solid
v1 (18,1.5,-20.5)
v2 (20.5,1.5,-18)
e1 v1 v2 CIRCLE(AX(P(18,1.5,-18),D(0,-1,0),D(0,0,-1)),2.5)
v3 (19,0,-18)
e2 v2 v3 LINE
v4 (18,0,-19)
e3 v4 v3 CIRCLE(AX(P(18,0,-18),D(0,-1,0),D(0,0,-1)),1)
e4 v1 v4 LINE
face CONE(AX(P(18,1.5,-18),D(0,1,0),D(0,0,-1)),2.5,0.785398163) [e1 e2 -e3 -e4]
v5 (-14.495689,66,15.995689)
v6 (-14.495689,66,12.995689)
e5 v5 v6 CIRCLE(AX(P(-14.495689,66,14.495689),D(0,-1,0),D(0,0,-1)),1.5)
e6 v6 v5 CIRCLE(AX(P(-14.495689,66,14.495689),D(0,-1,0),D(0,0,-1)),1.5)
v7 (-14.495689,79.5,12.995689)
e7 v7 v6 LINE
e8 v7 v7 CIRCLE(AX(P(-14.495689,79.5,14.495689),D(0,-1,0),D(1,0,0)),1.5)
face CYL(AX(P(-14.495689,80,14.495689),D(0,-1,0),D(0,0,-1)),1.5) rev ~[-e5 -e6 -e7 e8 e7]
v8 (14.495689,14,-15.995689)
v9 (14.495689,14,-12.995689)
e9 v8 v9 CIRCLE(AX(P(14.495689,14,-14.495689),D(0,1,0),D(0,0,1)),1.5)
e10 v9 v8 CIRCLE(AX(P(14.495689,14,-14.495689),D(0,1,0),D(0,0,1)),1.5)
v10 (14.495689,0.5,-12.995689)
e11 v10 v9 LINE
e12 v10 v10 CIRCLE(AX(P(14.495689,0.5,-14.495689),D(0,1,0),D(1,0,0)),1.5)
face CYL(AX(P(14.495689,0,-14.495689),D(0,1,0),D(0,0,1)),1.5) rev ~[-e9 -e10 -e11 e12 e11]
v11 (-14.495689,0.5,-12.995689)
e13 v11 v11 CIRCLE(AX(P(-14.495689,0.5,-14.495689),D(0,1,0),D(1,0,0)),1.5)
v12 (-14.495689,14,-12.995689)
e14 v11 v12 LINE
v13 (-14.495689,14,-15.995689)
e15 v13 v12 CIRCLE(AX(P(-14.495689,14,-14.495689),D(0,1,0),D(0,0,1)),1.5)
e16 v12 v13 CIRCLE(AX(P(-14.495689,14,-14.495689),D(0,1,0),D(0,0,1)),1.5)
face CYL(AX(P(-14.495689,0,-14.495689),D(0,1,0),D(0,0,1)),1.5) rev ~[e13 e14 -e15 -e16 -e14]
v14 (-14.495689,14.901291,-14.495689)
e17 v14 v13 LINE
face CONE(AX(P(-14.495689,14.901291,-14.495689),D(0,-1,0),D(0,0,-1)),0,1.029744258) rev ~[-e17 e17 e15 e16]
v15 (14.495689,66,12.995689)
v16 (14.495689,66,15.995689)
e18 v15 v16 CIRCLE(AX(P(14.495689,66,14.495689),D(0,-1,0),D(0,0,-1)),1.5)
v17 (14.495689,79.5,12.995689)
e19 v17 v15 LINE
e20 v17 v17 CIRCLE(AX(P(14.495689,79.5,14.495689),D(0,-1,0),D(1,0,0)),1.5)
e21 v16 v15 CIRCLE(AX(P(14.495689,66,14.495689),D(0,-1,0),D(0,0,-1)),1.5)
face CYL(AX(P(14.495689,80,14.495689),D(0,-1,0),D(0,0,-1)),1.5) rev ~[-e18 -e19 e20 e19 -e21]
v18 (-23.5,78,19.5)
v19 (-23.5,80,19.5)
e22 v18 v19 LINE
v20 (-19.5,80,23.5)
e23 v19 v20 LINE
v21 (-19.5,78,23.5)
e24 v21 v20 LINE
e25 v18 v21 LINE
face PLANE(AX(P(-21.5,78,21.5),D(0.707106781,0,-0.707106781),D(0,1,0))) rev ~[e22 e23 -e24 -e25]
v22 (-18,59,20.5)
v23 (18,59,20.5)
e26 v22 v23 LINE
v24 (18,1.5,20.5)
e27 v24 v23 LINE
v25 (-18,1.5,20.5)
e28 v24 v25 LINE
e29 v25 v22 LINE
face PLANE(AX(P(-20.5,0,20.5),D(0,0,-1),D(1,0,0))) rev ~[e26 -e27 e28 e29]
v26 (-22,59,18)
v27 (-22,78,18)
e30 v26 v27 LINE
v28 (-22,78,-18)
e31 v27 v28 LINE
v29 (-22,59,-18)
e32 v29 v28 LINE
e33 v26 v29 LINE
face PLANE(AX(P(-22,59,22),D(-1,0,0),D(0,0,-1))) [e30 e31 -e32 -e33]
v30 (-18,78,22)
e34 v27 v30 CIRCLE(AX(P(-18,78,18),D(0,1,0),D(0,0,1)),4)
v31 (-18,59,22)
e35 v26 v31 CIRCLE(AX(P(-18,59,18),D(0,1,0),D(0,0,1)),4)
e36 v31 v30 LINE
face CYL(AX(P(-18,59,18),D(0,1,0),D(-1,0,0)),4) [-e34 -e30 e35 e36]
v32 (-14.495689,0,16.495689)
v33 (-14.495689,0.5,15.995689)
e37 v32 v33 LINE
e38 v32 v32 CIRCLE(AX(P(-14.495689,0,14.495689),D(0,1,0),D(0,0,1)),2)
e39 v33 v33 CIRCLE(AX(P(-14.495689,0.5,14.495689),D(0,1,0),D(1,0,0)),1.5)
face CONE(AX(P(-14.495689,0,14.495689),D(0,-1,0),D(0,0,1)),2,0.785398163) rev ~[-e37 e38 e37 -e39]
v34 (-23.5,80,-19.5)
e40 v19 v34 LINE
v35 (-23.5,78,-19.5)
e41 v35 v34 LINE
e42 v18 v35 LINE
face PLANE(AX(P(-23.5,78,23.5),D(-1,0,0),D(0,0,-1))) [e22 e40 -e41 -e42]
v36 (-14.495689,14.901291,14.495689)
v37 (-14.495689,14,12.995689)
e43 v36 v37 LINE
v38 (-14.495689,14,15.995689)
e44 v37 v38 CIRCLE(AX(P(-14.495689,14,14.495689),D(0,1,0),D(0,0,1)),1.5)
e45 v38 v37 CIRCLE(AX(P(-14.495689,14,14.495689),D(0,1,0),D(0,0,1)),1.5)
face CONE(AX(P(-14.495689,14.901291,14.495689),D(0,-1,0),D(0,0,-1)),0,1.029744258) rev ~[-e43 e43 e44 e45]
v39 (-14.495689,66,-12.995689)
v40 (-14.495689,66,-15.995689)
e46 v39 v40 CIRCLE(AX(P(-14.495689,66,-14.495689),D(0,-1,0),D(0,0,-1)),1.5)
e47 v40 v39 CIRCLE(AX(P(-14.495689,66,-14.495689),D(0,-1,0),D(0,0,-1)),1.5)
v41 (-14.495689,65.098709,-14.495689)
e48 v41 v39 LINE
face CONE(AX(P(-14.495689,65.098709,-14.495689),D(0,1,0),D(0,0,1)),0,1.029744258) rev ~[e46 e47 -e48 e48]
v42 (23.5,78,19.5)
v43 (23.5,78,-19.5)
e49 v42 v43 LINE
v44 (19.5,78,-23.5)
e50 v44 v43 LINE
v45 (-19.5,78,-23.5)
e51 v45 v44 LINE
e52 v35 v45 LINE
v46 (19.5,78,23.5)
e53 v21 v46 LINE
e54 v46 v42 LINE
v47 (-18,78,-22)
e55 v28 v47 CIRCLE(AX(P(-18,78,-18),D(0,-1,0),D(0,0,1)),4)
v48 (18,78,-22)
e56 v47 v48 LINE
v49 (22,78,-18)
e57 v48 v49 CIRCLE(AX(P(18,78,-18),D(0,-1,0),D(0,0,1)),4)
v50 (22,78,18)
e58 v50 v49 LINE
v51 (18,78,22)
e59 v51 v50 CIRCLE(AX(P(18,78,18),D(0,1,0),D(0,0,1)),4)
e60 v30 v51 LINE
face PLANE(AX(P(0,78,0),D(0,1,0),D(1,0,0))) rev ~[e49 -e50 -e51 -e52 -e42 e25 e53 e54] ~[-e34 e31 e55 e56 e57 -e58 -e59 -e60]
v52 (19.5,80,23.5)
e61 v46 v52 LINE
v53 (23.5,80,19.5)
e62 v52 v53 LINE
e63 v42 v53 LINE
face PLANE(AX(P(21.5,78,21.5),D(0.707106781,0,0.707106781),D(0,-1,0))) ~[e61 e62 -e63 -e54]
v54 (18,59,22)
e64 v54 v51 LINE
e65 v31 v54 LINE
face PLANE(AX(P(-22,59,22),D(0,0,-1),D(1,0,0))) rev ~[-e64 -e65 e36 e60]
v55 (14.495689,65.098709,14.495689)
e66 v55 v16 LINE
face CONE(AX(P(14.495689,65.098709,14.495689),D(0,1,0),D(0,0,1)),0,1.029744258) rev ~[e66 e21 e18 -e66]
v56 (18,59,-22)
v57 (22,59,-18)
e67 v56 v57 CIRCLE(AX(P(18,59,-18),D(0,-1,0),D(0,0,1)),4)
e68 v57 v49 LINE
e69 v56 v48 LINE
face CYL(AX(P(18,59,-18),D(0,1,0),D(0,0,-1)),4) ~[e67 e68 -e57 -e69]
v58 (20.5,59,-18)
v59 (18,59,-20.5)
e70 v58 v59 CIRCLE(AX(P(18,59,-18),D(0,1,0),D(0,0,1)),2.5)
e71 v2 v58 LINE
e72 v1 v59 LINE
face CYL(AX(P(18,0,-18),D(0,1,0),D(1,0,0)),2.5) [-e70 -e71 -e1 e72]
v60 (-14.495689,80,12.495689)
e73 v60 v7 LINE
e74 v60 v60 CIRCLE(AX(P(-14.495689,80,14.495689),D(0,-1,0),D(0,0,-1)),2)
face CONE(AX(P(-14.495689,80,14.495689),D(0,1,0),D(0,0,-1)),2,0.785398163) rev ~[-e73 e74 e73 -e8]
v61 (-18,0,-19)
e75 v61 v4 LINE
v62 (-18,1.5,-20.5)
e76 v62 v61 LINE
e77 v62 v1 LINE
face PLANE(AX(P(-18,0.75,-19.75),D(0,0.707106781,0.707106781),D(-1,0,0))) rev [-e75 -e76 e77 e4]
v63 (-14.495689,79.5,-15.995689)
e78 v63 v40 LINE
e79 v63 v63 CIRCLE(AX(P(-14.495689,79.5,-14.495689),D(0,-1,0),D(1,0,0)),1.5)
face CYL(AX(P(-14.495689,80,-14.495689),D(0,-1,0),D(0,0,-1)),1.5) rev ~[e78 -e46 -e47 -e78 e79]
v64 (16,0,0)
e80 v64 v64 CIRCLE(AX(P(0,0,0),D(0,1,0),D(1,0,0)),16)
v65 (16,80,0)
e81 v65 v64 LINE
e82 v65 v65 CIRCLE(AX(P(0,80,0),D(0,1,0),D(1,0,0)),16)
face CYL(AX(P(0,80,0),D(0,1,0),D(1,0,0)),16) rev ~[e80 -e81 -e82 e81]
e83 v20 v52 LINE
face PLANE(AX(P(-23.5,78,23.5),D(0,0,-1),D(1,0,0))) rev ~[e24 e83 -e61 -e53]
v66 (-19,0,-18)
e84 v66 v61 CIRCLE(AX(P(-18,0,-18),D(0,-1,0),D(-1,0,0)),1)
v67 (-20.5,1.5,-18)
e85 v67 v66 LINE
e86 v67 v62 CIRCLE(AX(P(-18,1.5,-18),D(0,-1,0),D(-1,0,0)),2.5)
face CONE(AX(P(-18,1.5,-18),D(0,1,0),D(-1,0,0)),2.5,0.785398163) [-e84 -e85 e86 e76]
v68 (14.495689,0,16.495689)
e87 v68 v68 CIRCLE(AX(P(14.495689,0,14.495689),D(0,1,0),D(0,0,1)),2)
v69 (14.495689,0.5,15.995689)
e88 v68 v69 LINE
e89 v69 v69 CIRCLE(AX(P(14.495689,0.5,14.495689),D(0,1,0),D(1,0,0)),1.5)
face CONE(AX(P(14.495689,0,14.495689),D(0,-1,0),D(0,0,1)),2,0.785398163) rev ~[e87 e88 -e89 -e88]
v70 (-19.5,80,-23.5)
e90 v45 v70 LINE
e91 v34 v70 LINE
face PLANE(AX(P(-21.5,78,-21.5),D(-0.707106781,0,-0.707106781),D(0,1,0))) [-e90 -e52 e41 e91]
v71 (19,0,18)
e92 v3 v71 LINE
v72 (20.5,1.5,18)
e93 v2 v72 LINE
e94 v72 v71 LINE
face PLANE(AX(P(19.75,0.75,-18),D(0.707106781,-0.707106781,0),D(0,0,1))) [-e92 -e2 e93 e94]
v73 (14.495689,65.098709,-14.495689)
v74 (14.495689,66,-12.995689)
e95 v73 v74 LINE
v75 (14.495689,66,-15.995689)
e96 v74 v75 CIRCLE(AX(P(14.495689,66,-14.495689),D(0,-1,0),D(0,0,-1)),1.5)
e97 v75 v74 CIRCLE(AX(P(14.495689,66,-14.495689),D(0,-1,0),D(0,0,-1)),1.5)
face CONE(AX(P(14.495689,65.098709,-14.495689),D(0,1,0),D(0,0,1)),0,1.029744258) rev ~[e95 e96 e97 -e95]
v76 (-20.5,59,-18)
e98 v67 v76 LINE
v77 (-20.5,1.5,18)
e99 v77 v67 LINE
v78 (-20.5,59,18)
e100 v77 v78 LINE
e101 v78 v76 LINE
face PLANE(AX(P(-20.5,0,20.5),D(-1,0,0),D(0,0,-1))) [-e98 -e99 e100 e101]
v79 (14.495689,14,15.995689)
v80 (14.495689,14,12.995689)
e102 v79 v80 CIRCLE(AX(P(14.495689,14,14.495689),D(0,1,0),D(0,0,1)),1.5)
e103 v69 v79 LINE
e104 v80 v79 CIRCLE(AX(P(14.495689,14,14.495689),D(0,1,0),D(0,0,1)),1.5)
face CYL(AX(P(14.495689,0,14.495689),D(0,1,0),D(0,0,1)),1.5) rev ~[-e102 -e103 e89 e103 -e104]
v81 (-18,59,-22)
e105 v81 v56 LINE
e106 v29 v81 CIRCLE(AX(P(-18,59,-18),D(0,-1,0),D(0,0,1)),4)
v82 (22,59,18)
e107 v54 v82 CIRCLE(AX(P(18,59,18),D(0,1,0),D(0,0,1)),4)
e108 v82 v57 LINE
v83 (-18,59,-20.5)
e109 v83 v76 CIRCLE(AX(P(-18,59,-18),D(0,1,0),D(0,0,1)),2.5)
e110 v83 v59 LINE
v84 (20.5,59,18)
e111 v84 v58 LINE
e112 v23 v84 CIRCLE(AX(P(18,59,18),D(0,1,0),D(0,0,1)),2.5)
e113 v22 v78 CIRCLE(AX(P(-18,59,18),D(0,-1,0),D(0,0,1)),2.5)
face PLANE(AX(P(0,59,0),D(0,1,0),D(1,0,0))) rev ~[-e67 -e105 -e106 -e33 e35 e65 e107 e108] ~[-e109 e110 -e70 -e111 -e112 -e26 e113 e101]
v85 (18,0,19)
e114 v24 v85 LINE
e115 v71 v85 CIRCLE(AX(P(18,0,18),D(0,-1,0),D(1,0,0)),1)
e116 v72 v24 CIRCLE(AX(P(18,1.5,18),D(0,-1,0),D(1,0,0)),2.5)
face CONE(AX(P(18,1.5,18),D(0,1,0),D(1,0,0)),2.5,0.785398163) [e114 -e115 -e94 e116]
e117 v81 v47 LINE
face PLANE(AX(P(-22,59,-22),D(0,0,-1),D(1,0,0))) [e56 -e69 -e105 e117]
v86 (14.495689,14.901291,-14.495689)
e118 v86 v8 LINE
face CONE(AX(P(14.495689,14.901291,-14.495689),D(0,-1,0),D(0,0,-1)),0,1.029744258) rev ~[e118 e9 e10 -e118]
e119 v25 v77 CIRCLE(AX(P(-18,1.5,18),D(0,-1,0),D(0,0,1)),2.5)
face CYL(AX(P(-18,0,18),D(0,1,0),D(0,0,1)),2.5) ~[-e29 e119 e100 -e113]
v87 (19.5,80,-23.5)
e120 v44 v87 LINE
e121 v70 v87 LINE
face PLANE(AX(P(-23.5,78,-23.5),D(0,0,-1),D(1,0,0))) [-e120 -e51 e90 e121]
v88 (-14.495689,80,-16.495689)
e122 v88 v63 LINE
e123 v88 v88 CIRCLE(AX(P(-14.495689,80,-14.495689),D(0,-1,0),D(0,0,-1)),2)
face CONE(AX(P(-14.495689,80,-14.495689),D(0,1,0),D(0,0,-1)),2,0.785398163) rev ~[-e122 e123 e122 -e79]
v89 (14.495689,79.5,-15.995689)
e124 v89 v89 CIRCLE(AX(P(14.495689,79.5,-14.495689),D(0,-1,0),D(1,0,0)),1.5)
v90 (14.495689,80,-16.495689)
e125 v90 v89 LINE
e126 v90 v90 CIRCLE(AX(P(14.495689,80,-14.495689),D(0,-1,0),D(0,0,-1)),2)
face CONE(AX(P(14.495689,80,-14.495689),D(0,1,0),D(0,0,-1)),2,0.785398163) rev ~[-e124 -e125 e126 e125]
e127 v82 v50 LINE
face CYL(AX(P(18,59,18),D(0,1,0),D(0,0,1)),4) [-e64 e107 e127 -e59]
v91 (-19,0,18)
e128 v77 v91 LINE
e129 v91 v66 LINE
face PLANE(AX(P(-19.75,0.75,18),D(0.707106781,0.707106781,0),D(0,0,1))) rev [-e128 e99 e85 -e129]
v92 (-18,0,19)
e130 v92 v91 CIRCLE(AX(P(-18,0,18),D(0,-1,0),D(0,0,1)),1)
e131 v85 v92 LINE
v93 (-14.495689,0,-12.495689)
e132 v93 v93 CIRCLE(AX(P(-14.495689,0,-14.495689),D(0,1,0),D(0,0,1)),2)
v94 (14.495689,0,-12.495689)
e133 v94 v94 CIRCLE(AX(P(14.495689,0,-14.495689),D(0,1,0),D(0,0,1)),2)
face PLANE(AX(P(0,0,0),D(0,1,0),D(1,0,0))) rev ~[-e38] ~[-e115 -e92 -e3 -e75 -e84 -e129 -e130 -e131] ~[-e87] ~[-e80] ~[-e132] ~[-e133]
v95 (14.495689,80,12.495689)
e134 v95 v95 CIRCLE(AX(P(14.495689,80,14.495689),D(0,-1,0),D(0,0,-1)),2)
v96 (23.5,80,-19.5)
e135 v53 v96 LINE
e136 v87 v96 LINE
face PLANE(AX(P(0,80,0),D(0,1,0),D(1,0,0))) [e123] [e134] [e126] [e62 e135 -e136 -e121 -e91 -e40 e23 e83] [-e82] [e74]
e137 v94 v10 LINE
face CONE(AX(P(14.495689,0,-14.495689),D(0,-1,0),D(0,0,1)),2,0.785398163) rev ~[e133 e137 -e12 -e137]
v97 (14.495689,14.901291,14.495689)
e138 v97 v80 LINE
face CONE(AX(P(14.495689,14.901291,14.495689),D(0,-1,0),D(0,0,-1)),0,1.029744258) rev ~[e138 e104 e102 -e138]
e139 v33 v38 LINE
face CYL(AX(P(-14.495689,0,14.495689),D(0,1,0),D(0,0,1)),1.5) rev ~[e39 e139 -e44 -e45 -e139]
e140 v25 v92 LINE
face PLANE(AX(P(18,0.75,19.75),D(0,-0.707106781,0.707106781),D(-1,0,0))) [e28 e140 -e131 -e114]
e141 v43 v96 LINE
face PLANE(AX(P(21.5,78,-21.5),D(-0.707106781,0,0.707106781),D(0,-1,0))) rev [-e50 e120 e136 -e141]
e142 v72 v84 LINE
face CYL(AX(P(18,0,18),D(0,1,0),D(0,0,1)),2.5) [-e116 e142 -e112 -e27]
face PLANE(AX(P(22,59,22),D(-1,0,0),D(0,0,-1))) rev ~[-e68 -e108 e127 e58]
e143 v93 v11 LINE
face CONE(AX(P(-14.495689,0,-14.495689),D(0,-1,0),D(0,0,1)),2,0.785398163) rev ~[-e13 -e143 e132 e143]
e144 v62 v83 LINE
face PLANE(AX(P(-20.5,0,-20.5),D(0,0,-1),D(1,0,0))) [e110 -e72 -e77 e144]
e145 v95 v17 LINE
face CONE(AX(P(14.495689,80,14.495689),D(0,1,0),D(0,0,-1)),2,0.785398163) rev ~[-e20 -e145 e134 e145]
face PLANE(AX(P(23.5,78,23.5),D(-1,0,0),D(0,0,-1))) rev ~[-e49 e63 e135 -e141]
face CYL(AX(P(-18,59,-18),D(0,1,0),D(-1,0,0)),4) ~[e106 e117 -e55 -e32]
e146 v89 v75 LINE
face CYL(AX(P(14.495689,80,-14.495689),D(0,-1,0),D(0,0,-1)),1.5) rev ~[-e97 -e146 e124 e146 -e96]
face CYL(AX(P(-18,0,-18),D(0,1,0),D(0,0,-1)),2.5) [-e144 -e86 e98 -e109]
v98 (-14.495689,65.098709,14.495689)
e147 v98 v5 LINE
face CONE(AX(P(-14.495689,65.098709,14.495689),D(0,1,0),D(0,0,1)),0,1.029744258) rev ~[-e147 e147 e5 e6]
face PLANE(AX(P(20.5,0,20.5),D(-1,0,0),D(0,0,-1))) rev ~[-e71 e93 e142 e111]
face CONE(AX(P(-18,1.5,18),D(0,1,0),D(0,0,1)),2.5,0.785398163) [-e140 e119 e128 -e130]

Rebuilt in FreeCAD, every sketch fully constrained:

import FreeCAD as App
import Part
import Sketcher
from FreeCAD import Vector


def edges_at(feature, points):
    """Names of the edges that pass closest to the given points."""
    edges = feature.Shape.Edges
    near = lambda p: min(range(len(edges)), key=lambda i: edges[i].distToShape(Part.Vertex(*p))[0])
    return sorted({f"Edge{near(p) + 1}" for p in points})


def add_polygon(sketch, points):
    """Adds a closed chain of lines whose ends are joined by coincident constraints."""
    first, n = sketch.GeometryCount, len(points)
    for a, b in zip(points, points[1:] + points[:1]):
        sketch.addGeometry(Part.LineSegment(App.Vector(*a, 0), App.Vector(*b, 0)), False)
    for i in range(n):
        sketch.addConstraint(Sketcher.Constraint("Coincident", first + i, 2, first + (i + 1) % n, 1))

doc = App.newDocument("Part")
body = doc.addObject("PartDesign::Body", "Body")

# Sketch on XZ plane
sketch1 = body.newObject("Sketcher::SketchObject", "Sketch")
sketch1.AttachmentSupport = (doc.getObject("XZ_Plane"), [""])
sketch1.MapMode = "FlatFace"
add_polygon(sketch1, [(-20.5, -20.5), (-20.5, 20.5), (20.5, 20.5), (20.5, -20.5)])  # lines 0-3
sketch1.addConstraint(Sketcher.Constraint("Vertical", 0))
sketch1.addConstraint(Sketcher.Constraint("Horizontal", 1))
sketch1.addConstraint(Sketcher.Constraint("Vertical", 2))
sketch1.addConstraint(Sketcher.Constraint("Horizontal", 3))
sketch1.addConstraint(Sketcher.Constraint("Symmetric", 0, 2, 2, 2, -1, 1))
sketch1.addConstraint(Sketcher.Constraint("Equal", 3, 0))
sketch1.addConstraint(Sketcher.Constraint("DistanceX", 1, 1, 1, 2, 41.0))
pad1 = body.newObject("PartDesign::Pad", "Pad")
pad1.Profile = sketch1
pad1.Length = 59
pad1.Reversed = True

# Sketch on XZ plane
sketch2 = body.newObject("Sketcher::SketchObject", "Sketch001")
sketch2.AttachmentSupport = (doc.getObject("XZ_Plane"), [""])
sketch2.MapMode = "FlatFace"
sketch2.AttachmentOffset = App.Placement(Vector(0, 0, -59), App.Rotation())
add_polygon(sketch2, [(-22, -22), (-22, 22), (22, 22), (22, -22)])  # lines 0-3
sketch2.addConstraint(Sketcher.Constraint("Vertical", 0))
sketch2.addConstraint(Sketcher.Constraint("Horizontal", 1))
sketch2.addConstraint(Sketcher.Constraint("Vertical", 2))
sketch2.addConstraint(Sketcher.Constraint("Horizontal", 3))
sketch2.addConstraint(Sketcher.Constraint("Symmetric", 0, 2, 2, 2, -1, 1))
sketch2.addConstraint(Sketcher.Constraint("Equal", 3, 0))
sketch2.addConstraint(Sketcher.Constraint("DistanceX", 1, 1, 1, 2, 44.0))
pad2 = body.newObject("PartDesign::Pad", "Pad001")
pad2.Profile = sketch2
pad2.Length = 19
pad2.Reversed = True

# Sketch on XZ plane
sketch3 = body.newObject("Sketcher::SketchObject", "Sketch002")
sketch3.AttachmentSupport = (doc.getObject("XZ_Plane"), [""])
sketch3.MapMode = "FlatFace"
sketch3.AttachmentOffset = App.Placement(Vector(0, 0, -78), App.Rotation())
add_polygon(sketch3, [(-23.5, -23.5), (-23.5, 23.5), (23.5, 23.5), (23.5, -23.5)])  # lines 0-3
sketch3.addConstraint(Sketcher.Constraint("Vertical", 0))
sketch3.addConstraint(Sketcher.Constraint("Horizontal", 1))
sketch3.addConstraint(Sketcher.Constraint("Vertical", 2))
sketch3.addConstraint(Sketcher.Constraint("Horizontal", 3))
sketch3.addConstraint(Sketcher.Constraint("Symmetric", 0, 2, 2, 2, -1, 1))
sketch3.addConstraint(Sketcher.Constraint("Equal", 3, 0))
sketch3.addConstraint(Sketcher.Constraint("DistanceX", 1, 1, 1, 2, 47.0))
pad3 = body.newObject("PartDesign::Pad", "Pad002")
pad3.Profile = sketch3
pad3.Length = 2
pad3.Reversed = True
doc.recompute()

fillet = body.newObject("PartDesign::Fillet", "Fillet")
fillet.Base = (pad3, edges_at(pad3, [
    (20.5, 29.5, 20.5),
    (-20.5, 29.5, 20.5),
    (-20.5, 29.5, -20.5),
    (20.5, 29.5, -20.5),
]))
fillet.Radius = 2.5
doc.recompute()

fillet2 = body.newObject("PartDesign::Fillet", "Fillet001")
fillet2.Base = (fillet, edges_at(fillet, [
    (22, 68.5, 22),
    (22, 68.5, -22),
    (-22, 68.5, -22),
    (-22, 68.5, 22),
]))
fillet2.Radius = 4
doc.recompute()

chamfer = body.newObject("PartDesign::Chamfer", "Chamfer")
chamfer.Base = (fillet2, edges_at(fillet2, [
    (-20.5, 0, 0),
    (20.5, 0, 0),
    (0, 0, 20.5),
    (0, 0, -20.5),
    (19.768, 0, 19.768),
    (19.768, 0, -19.768),
    (-19.768, 0, 19.768),
    (-19.768, 0, -19.768),
]))
chamfer.Size = 1.5
doc.recompute()

chamfer2 = body.newObject("PartDesign::Chamfer", "Chamfer001")
chamfer2.Base = (chamfer, edges_at(chamfer, [
    (23.5, 79, 23.5),
    (23.5, 79, -23.5),
    (-23.5, 79, -23.5),
    (-23.5, 79, 23.5),
]))
chamfer2.Size = 4

# Sketch on XZ plane
sketch4 = body.newObject("Sketcher::SketchObject", "Sketch003")
sketch4.AttachmentSupport = (doc.getObject("XZ_Plane"), [""])
sketch4.MapMode = "FlatFace"
sketch4.AttachmentOffset = App.Placement(Vector(0, 0, -80), App.Rotation())
sketch4.addGeometry(Part.Circle(Vector(0, 0, 0), Vector(0, 0, 1), 16), False)
sketch4.addConstraint(Sketcher.Constraint("Coincident", 0, 3, -1, 1))
sketch4.addConstraint(Sketcher.Constraint("Diameter", 0, 32.0))
pocket1 = body.newObject("PartDesign::Pocket", "Pocket")
pocket1.Profile = sketch4
pocket1.Type = "ThroughAll"
pocket1.Reversed = True

# Sketch on XZ plane
sketch5 = body.newObject("Sketcher::SketchObject", "Sketch004")
sketch5.AttachmentSupport = (doc.getObject("XZ_Plane"), [""])
sketch5.MapMode = "FlatFace"
sketch5.addGeometry(Part.Circle(Vector(-14.495689, 14.495689, 0), Vector(0, 0, 1), 1.5), False)
sketch5.addGeometry(Part.Circle(Vector(-14.495689, -14.495689, 0), Vector(0, 0, 1), 1.5), False)
sketch5.addGeometry(Part.Circle(Vector(14.495689, -14.495689, 0), Vector(0, 0, 1), 1.5), False)
sketch5.addGeometry(Part.Circle(Vector(14.495689, 14.495689, 0), Vector(0, 0, 1), 1.5), False)
sketch5.addConstraint(Sketcher.Constraint("Equal", 0, 1))
sketch5.addConstraint(Sketcher.Constraint("Equal", 1, 2))
sketch5.addConstraint(Sketcher.Constraint("Equal", 2, 3))
sketch5.addConstraint(Sketcher.Constraint("Symmetric", 0, 3, 2, 3, -1, 1))
sketch5.addConstraint(Sketcher.Constraint("Symmetric", 1, 3, 3, 3, -1, 1))
sketch5.addConstraint(Sketcher.Constraint("Symmetric", 1, 3, 2, 3, -2))
sketch5.addConstraint(Sketcher.Constraint("Diameter", 0, 3.0))
sketch5.addConstraint(Sketcher.Constraint("DistanceX", 0, 3, -1, 1, 14.495689))
sketch5.addConstraint(Sketcher.Constraint("DistanceY", -1, 1, 0, 3, 14.495689))
doc.recompute()
hole = body.newObject("PartDesign::Hole", "Hole")
hole.Profile = sketch5
hole.ThreadType = "None"
hole.Diameter = 3
hole.DepthType = "Dimension"
hole.Depth = 14
hole.DrillPoint = "Angled"
hole.DrillPointAngle = 118
hole.HoleCutType = "Countersink"
hole.HoleCutDiameter = 4
hole.HoleCutCountersinkAngle = 90

# Sketch on XZ plane
sketch6 = body.newObject("Sketcher::SketchObject", "Sketch005")
sketch6.AttachmentSupport = (doc.getObject("XZ_Plane"), [""])
sketch6.MapMode = "FlatFace"
sketch6.AttachmentOffset = App.Placement(Vector(0, 0, -80), App.Rotation())
sketch6.addGeometry(Part.Circle(Vector(-14.495689, 14.495689, 0), Vector(0, 0, 1), 1.5), False)
sketch6.addGeometry(Part.Circle(Vector(14.495689, 14.495689, 0), Vector(0, 0, 1), 1.5), False)
sketch6.addGeometry(Part.Circle(Vector(14.495689, -14.495689, 0), Vector(0, 0, 1), 1.5), False)
sketch6.addGeometry(Part.Circle(Vector(-14.495689, -14.495689, 0), Vector(0, 0, 1), 1.5), False)
sketch6.addConstraint(Sketcher.Constraint("Equal", 0, 1))
sketch6.addConstraint(Sketcher.Constraint("Equal", 1, 2))
sketch6.addConstraint(Sketcher.Constraint("Equal", 2, 3))
sketch6.addConstraint(Sketcher.Constraint("Symmetric", 0, 3, 2, 3, -1, 1))
sketch6.addConstraint(Sketcher.Constraint("Symmetric", 1, 3, 3, 3, -1, 1))
sketch6.addConstraint(Sketcher.Constraint("Symmetric", 0, 3, 1, 3, -2))
sketch6.addConstraint(Sketcher.Constraint("Diameter", 0, 3.0))
sketch6.addConstraint(Sketcher.Constraint("DistanceX", 0, 3, -1, 1, 14.495689))
sketch6.addConstraint(Sketcher.Constraint("DistanceY", -1, 1, 0, 3, 14.495689))
doc.recompute()
hole2 = body.newObject("PartDesign::Hole", "Hole001")
hole2.Profile = sketch6
hole2.ThreadType = "None"
hole2.Diameter = 3
hole2.DepthType = "Dimension"
hole2.Depth = 14
hole2.DrillPoint = "Angled"
hole2.DrillPointAngle = 118
hole2.HoleCutType = "Countersink"
hole2.HoleCutDiameter = 4
hole2.HoleCutCountersinkAngle = 90
hole2.Reversed = True

doc.recompute()
